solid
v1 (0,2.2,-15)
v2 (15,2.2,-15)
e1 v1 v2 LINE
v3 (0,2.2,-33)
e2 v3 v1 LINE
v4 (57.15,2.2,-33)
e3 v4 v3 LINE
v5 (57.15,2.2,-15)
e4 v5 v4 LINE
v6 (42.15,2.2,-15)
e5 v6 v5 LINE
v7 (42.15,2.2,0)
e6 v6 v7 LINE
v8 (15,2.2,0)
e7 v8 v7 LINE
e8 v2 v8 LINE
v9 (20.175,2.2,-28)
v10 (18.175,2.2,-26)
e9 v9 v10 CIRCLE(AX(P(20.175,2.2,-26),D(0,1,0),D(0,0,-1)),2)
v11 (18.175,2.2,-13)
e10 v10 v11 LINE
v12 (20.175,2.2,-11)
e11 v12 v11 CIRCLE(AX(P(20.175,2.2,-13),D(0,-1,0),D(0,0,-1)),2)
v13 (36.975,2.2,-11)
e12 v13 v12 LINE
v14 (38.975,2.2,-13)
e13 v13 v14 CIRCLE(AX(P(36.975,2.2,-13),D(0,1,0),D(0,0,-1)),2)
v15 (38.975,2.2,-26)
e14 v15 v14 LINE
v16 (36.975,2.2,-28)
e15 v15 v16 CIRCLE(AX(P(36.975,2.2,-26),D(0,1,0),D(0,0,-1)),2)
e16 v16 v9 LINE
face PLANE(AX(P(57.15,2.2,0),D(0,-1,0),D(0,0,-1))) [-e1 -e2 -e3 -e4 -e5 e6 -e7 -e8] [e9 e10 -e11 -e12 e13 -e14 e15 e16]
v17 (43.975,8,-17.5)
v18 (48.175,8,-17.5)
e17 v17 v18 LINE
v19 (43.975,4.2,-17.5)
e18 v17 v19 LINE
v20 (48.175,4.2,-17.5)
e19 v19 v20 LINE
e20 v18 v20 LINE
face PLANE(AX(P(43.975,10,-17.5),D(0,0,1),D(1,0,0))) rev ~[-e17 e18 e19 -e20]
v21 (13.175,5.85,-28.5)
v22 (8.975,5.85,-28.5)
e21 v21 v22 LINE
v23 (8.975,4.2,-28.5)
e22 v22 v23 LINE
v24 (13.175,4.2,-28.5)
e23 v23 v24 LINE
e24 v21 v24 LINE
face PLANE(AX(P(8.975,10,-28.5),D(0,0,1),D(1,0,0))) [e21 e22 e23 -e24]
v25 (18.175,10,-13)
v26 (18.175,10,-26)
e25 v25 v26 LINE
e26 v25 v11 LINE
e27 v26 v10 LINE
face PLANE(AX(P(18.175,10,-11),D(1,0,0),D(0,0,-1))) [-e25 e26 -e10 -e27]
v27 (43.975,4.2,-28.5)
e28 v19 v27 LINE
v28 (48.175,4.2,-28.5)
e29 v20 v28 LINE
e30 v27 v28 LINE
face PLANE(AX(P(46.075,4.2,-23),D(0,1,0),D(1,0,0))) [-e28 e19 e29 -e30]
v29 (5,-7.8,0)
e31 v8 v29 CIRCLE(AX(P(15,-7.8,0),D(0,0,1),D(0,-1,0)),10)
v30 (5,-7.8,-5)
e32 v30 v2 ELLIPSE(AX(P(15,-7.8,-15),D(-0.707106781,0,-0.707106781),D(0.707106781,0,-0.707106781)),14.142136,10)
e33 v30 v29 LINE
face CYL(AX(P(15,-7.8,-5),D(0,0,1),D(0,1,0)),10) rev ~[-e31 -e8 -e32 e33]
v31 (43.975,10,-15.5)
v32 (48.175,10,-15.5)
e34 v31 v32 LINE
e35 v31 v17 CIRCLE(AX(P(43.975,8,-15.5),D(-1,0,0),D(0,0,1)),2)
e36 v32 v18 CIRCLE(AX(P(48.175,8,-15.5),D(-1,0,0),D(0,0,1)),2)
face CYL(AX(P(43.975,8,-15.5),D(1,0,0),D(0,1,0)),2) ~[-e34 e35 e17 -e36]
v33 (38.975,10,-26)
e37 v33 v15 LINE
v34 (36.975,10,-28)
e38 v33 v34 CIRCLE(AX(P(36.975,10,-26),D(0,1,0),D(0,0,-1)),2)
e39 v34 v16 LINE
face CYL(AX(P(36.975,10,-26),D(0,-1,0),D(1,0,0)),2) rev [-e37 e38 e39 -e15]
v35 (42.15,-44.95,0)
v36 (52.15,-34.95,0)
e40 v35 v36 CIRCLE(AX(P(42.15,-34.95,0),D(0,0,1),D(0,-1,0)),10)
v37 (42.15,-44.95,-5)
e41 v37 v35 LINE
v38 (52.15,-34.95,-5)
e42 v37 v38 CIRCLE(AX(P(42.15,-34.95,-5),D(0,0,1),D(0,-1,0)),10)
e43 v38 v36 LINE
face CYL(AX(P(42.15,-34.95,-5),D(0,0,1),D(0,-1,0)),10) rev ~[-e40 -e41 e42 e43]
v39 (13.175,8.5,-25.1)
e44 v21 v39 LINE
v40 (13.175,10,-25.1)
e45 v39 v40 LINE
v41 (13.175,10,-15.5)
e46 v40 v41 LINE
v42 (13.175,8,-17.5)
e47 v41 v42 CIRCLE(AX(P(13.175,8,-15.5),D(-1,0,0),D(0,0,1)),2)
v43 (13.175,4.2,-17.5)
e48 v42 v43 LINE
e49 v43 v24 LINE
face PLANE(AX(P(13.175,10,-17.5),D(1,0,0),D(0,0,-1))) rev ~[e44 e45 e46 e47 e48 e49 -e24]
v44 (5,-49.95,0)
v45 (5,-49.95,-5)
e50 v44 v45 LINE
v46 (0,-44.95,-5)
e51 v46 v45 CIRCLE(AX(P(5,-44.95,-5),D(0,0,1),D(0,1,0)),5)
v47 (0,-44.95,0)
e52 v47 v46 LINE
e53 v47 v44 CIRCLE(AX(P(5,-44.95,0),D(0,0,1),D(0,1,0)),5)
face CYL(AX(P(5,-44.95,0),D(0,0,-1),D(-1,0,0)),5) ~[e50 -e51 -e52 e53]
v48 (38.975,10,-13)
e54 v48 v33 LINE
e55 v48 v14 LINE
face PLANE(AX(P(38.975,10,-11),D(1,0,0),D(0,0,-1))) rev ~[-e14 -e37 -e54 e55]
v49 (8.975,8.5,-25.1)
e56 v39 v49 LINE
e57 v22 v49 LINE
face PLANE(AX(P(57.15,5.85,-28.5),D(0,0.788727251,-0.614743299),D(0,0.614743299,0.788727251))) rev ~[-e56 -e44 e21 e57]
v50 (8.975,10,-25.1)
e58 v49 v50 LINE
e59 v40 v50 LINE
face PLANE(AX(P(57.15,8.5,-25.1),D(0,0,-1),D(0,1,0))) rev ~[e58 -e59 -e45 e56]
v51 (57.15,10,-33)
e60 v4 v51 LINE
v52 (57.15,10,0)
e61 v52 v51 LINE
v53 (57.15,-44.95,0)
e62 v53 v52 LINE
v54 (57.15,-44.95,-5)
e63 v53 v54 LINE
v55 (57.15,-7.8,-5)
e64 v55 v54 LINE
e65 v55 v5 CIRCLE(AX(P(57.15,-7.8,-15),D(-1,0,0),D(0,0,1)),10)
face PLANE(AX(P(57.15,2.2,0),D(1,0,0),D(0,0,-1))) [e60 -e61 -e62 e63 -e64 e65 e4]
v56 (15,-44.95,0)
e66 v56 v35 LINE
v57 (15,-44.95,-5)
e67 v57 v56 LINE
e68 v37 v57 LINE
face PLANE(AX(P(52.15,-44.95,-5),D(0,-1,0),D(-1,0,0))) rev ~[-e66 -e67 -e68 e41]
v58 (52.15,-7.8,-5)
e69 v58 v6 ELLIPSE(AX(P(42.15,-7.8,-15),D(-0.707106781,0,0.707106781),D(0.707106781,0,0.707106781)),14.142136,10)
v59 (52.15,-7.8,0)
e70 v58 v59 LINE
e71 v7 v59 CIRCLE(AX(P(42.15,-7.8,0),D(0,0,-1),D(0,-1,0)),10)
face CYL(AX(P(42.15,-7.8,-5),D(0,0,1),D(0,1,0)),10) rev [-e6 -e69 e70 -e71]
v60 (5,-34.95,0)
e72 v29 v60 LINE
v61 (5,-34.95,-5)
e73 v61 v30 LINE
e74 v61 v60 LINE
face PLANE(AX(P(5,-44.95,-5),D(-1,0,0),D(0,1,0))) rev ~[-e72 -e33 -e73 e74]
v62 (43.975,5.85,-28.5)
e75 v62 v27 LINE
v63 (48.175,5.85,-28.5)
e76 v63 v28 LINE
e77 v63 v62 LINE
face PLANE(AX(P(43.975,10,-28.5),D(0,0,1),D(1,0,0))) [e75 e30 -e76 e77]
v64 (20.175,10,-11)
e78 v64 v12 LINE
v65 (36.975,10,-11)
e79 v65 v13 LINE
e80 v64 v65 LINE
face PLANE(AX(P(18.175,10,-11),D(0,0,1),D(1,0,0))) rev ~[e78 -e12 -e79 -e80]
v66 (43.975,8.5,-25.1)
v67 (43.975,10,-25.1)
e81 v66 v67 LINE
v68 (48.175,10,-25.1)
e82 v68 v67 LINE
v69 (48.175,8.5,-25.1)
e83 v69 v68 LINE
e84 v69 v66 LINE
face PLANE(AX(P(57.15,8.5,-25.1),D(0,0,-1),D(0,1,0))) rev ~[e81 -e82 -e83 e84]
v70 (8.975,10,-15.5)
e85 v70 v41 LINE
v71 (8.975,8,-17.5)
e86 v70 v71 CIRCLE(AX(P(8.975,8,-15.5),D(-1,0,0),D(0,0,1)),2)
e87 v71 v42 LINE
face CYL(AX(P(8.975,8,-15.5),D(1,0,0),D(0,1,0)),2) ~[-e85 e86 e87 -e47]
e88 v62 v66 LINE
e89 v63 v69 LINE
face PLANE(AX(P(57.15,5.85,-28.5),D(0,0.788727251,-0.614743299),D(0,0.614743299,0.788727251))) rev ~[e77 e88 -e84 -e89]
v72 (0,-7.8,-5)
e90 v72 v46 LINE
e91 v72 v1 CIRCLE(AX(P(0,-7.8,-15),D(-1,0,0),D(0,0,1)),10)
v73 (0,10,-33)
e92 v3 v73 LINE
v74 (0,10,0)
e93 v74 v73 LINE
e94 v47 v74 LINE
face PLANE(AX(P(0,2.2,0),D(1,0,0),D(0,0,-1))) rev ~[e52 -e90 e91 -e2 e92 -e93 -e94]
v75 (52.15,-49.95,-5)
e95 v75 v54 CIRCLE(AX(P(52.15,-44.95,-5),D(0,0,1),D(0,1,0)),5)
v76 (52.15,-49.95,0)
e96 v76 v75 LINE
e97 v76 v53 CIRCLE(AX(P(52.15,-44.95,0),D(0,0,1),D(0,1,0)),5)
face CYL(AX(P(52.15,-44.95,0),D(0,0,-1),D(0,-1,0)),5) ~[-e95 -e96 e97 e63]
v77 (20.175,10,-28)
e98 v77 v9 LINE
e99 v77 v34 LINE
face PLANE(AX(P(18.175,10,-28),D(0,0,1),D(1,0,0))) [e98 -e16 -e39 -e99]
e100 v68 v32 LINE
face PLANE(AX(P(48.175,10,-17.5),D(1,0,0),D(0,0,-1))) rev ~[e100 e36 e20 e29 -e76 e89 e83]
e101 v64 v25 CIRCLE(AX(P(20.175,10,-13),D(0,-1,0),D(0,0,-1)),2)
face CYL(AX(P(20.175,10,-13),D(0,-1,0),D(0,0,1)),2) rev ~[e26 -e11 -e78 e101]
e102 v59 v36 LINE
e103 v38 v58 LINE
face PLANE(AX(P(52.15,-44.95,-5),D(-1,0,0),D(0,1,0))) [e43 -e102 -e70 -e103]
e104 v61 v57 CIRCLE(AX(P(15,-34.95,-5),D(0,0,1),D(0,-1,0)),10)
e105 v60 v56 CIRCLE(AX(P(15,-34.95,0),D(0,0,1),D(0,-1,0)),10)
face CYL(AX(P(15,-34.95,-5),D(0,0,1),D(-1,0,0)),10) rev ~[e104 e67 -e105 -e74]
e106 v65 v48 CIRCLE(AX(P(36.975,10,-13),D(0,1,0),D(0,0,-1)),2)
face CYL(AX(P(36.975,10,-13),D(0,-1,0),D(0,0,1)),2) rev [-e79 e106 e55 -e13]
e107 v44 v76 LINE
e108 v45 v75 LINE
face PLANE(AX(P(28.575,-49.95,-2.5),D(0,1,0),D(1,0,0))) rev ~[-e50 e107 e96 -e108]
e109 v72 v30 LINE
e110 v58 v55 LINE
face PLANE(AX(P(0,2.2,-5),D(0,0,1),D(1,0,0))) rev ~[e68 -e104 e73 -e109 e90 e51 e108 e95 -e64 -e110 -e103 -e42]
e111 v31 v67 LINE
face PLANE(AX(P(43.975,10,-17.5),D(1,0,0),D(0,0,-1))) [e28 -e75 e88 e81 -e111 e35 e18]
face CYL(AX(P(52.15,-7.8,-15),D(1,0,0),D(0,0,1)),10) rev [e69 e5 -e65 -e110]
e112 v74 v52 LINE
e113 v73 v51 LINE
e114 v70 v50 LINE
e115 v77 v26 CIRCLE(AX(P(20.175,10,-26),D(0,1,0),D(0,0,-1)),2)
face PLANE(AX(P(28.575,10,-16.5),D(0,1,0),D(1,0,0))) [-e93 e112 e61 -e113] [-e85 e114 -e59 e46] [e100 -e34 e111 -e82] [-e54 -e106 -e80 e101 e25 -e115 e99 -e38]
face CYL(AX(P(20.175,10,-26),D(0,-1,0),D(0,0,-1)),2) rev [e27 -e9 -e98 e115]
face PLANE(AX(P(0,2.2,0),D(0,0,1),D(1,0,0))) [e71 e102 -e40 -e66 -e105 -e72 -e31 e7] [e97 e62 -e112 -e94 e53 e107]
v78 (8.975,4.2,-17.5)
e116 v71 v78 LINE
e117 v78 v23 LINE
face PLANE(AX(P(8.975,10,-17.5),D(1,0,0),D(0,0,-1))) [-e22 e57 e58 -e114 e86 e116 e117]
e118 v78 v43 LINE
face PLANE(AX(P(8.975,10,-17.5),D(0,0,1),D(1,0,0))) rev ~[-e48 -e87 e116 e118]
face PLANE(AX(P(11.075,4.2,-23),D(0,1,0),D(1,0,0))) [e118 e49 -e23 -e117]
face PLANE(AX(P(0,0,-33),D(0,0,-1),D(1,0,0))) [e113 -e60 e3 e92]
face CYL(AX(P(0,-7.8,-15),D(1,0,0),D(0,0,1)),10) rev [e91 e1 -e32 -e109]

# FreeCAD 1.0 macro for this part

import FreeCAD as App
import Part
import Sketcher

V = App.Vector


def edges_at(feature, points):
    """Names of the edges that pass closest to the given points."""
    edges = feature.Shape.Edges
    near = lambda p: min(range(len(edges)), key=lambda i: edges[i].distToShape(Part.Vertex(*p))[0])
    return sorted({f"Edge{near(p) + 1}" for p in points})

doc = App.newDocument("Part")
params = doc.addObject("Spreadsheet::Sheet", "Params")
for row, (alias, value) in enumerate([
    ("sketch1_height", "33 mm"),
    ("sketch1_width", "57.15 mm"),
    ("pad1_length", "10 mm"),
    ("sketch2_height", "11 mm"),
    ("sketch2_width", "4.2 mm"),
    ("pocket1_length", "5.8 mm"),
    ("sketch3_width", "1.5 mm"),
    ("sketch3_height", "3.4 mm"),
    ("sketch3_width2", "4.15 mm"),
    ("pad2_length", "55.8 mm"),
    ("sketch4_height", "33 mm"),
    ("sketch4_width", "2.2 mm"),
    ("fillet_radius", "2 mm"),
    ("sketch5_height", "17 mm"),
    ("sketch5_width", "20.8 mm"),
    ("pocket3_length", "16 mm"),
    ("fillet2_radius", "2 mm"),
    ("sketch6_height", "5 mm"),
    ("sketch6_width", "57.15 mm"),
    ("pad3_length", "52.15 mm"),
    ("sketch7_width", "47.15 mm"),
    ("pocket4_length", "52.15 mm"),
    ("fillet3_radius", "10 mm"),
    ("fillet4_radius", "5 mm"),
], start=1):
    params.set(f"A{row}", alias)
    params.set(f"B{row}", "=" + value)
    params.setAlias(f"B{row}", alias)

body = doc.addObject("PartDesign::Body", "Body")

# Sketch on XZ plane
sketch1 = doc.addObject("Sketcher::SketchObject", "Sketch")
body.addObject(sketch1)
sketch1.AttachmentSupport = (doc.XZ_Plane, [""])
sketch1.MapMode = "FlatFace"
sketch1.addGeometry([
    Part.LineSegment(V(0, -33, 0), V(0, 0, 0)),
    Part.LineSegment(V(0, 0, 0), V(57, 0, 0)),
    Part.LineSegment(V(57, 0, 0), V(57, -33, 0)),
    Part.LineSegment(V(57, -33, 0), V(0, -33, 0)),
], False)
sketch1.addConstraint([
    Sketcher.Constraint("Coincident", 0, 2, 1, 1),
    Sketcher.Constraint("Coincident", 1, 2, 2, 1),
    Sketcher.Constraint("Coincident", 2, 2, 3, 1),
    Sketcher.Constraint("Coincident", 3, 2, 0, 1),
    Sketcher.Constraint("Vertical", 0),
    Sketcher.Constraint("Horizontal", 1),
    Sketcher.Constraint("Vertical", 2),
    Sketcher.Constraint("Horizontal", 3),
    Sketcher.Constraint("Coincident", 0, 2, -1, 1),
    Sketcher.Constraint("DistanceY", 0, 1, 0, 2, 33.0),
    Sketcher.Constraint("DistanceX", 1, 1, 1, 2, 57.15),
])
sketch1.setExpression("Constraints[9]", "Params.sketch1_height")
sketch1.setExpression("Constraints[10]", "Params.sketch1_width")
pad1 = doc.addObject("PartDesign::Pad", "Pad")
body.addObject(pad1)
pad1.Profile = sketch1
pad1.setExpression("Length", "Params.pad1_length")
pad1.Reversed = True

# Sketch on XZ plane
sketch2 = doc.addObject("Sketcher::SketchObject", "Sketch001")
body.addObject(sketch2)
sketch2.AttachmentSupport = (doc.XZ_Plane, [""])
sketch2.MapMode = "FlatFace"
sketch2.AttachmentOffset = App.Placement(V(0, 0, -10), App.Rotation())
sketch2.addGeometry([
    Part.LineSegment(V(9, -28.5, 0), V(9, -17.5, 0)),  # 0
    Part.LineSegment(V(9, -17.5, 0), V(13.2, -17.5, 0)),  # 1
    Part.LineSegment(V(13.2, -17.5, 0), V(13.2, -28.5, 0)),  # 2
    Part.LineSegment(V(13.2, -28.5, 0), V(9, -28.5, 0)),  # 3
    Part.LineSegment(V(44, -28.5, 0), V(44, -17.5, 0)),  # 4
    Part.LineSegment(V(44, -17.5, 0), V(48.2, -17.5, 0)),  # 5
    Part.LineSegment(V(48.2, -17.5, 0), V(48.2, -28.5, 0)),  # 6
    Part.LineSegment(V(48.2, -28.5, 0), V(44, -28.5, 0)),  # 7
], False)
sketch2.addConstraint([
    Sketcher.Constraint("Coincident", 0, 2, 1, 1),
    Sketcher.Constraint("Coincident", 1, 2, 2, 1),
    Sketcher.Constraint("Coincident", 2, 2, 3, 1),
    Sketcher.Constraint("Coincident", 3, 2, 0, 1),
    Sketcher.Constraint("Coincident", 4, 2, 5, 1),
    Sketcher.Constraint("Coincident", 5, 2, 6, 1),
    Sketcher.Constraint("Coincident", 6, 2, 7, 1),
    Sketcher.Constraint("Coincident", 7, 2, 4, 1),
    Sketcher.Constraint("Vertical", 0),
    Sketcher.Constraint("Horizontal", 1),
    Sketcher.Constraint("Vertical", 2),
    Sketcher.Constraint("Horizontal", 3),
    Sketcher.Constraint("Vertical", 4),
    Sketcher.Constraint("Horizontal", 5),
    Sketcher.Constraint("Vertical", 6),
    Sketcher.Constraint("Horizontal", 7),
    Sketcher.Constraint("Horizontal", 1, 2, 4, 2),
    Sketcher.Constraint("Horizontal", 3, 2, 6, 2),
    Sketcher.Constraint("Equal", 3, 5),
    Sketcher.Constraint("DistanceY", 0, 1, 0, 2, 11.0),
    Sketcher.Constraint("DistanceX", 1, 1, 1, 2, 4.2),
    Sketcher.Constraint("DistanceX", 0, 2, 4, 2, 35.0),
    Sketcher.Constraint("DistanceY", 0, 2, -1, 1, 17.5),
    Sketcher.Constraint("DistanceX", -1, 1, 0, 2, 8.975),
])
sketch2.setExpression("Constraints[19]", "Params.sketch2_height")
sketch2.setExpression("Constraints[20]", "Params.sketch2_width")
pocket1 = doc.addObject("PartDesign::Pocket", "Pocket")
body.addObject(pocket1)
pocket1.Profile = sketch2
pocket1.setExpression("Length", "Params.pocket1_length")
pocket1.Reversed = True

# Sketch on YZ plane
sketch3 = doc.addObject("Sketcher::SketchObject", "Sketch002")
body.addObject(sketch3)
sketch3.AttachmentSupport = (doc.YZ_Plane, [""])
sketch3.MapMode = "FlatFace"
sketch3.AttachmentOffset = App.Placement(V(0, 0, 57.15), App.Rotation())
sketch3.addGeometry([
    Part.LineSegment(V(5.8, -28.5, 0), V(8.5, -25.1, 0)),
    Part.LineSegment(V(8.5, -25.1, 0), V(10, -25.1, 0)),
    Part.LineSegment(V(10, -25.1, 0), V(10, -28.5, 0)),
    Part.LineSegment(V(10, -28.5, 0), V(5.8, -28.5, 0)),
], False)
sketch3.addConstraint([
    Sketcher.Constraint("Coincident", 0, 2, 1, 1),
    Sketcher.Constraint("Coincident", 1, 2, 2, 1),
    Sketcher.Constraint("Coincident", 2, 2, 3, 1),
    Sketcher.Constraint("Coincident", 3, 2, 0, 1),
    Sketcher.Constraint("Horizontal", 1),
    Sketcher.Constraint("Vertical", 2),
    Sketcher.Constraint("Horizontal", 3),
    Sketcher.Constraint("DistanceX", 1, 1, 1, 2, 1.5),
    Sketcher.Constraint("DistanceY", 2, 2, 2, 1, 3.4),
    Sketcher.Constraint("DistanceX", -1, 1, 1, 2, 10.0),
    Sketcher.Constraint("DistanceX", 3, 2, 3, 1, 4.15),
    Sketcher.Constraint("DistanceY", 0, 2, -1, 1, 25.1),
])
sketch3.setExpression("Constraints[7]", "Params.sketch3_width")
sketch3.setExpression("Constraints[8]", "Params.sketch3_height")
sketch3.setExpression("Constraints[10]", "Params.sketch3_width2")
pad2 = doc.addObject("PartDesign::Pad", "Pad001")
body.addObject(pad2)
pad2.Profile = sketch3
pad2.setExpression("Length", "Params.pad2_length")
pad2.Reversed = True

# Sketch on YZ plane
sketch4 = doc.addObject("Sketcher::SketchObject", "Sketch003")
body.addObject(sketch4)
sketch4.AttachmentSupport = (doc.YZ_Plane, [""])
sketch4.MapMode = "FlatFace"
sketch4.AttachmentOffset = App.Placement(V(0, 0, 57.15), App.Rotation())
sketch4.addGeometry([
    Part.LineSegment(V(2.2, 0, 0), V(0, 0, 0)),
    Part.LineSegment(V(0, 0, 0), V(0, -33, 0)),
    Part.LineSegment(V(0, -33, 0), V(2.2, -33, 0)),
    Part.LineSegment(V(2.2, -33, 0), V(2.2, 0, 0)),
], False)
sketch4.addConstraint([
    Sketcher.Constraint("Coincident", 0, 2, 1, 1),
    Sketcher.Constraint("Coincident", 1, 2, 2, 1),
    Sketcher.Constraint("Coincident", 2, 2, 3, 1),
    Sketcher.Constraint("Coincident", 3, 2, 0, 1),
    Sketcher.Constraint("Horizontal", 0),
    Sketcher.Constraint("Vertical", 1),
    Sketcher.Constraint("Horizontal", 2),
    Sketcher.Constraint("Vertical", 3),
    Sketcher.Constraint("Coincident", 0, 2, -1, 1),
    Sketcher.Constraint("DistanceY", 1, 2, 1, 1, 33.0),
    Sketcher.Constraint("DistanceX", 0, 2, 0, 1, 2.2),
])
sketch4.setExpression("Constraints[9]", "Params.sketch4_height")
sketch4.setExpression("Constraints[10]", "Params.sketch4_width")
pocket2 = doc.addObject("PartDesign::Pocket", "Pocket001")
body.addObject(pocket2)
pocket2.Profile = sketch4
pocket2.Type = "ThroughAll"
pocket2.Midplane = True
doc.recompute()

fillet = doc.addObject("PartDesign::Fillet", "Fillet")
body.addObject(fillet)
fillet.Base = (pocket2, edges_at(pocket2, [(11.075, 10, -17.5), (46.075, 10, -17.5)]))
fillet.setExpression("Radius", "Params.fillet_radius")

# Sketch on XZ plane
sketch5 = doc.addObject("Sketcher::SketchObject", "Sketch004")
body.addObject(sketch5)
sketch5.AttachmentSupport = (doc.XZ_Plane, [""])
sketch5.MapMode = "FlatFace"
sketch5.AttachmentOffset = App.Placement(V(0, 0, -10), App.Rotation())
sketch5.addGeometry([
    Part.LineSegment(V(18, -28, 0), V(18, -11, 0)),
    Part.LineSegment(V(18, -11, 0), V(39, -11, 0)),
    Part.LineSegment(V(39, -11, 0), V(39, -28, 0)),
    Part.LineSegment(V(39, -28, 0), V(18, -28, 0)),
], False)
sketch5.addConstraint([
    Sketcher.Constraint("Coincident", 0, 2, 1, 1),
    Sketcher.Constraint("Coincident", 1, 2, 2, 1),
    Sketcher.Constraint("Coincident", 2, 2, 3, 1),
    Sketcher.Constraint("Coincident", 3, 2, 0, 1),
    Sketcher.Constraint("Vertical", 0),
    Sketcher.Constraint("Horizontal", 1),
    Sketcher.Constraint("Vertical", 2),
    Sketcher.Constraint("Horizontal", 3),
    Sketcher.Constraint("DistanceY", 0, 1, 0, 2, 17.0),
    Sketcher.Constraint("DistanceX", 1, 1, 1, 2, 20.8),
    Sketcher.Constraint("DistanceY", 0, 2, -1, 1, 11.0),
    Sketcher.Constraint("DistanceX", -1, 1, 0, 2, 18.175),
])
sketch5.setExpression("Constraints[8]", "Params.sketch5_height")
sketch5.setExpression("Constraints[9]", "Params.sketch5_width")
pocket3 = doc.addObject("PartDesign::Pocket", "Pocket002")
body.addObject(pocket3)
pocket3.Profile = sketch5
pocket3.setExpression("Length", "Params.pocket3_length")
pocket3.Reversed = True
doc.recompute()

fillet2 = doc.addObject("PartDesign::Fillet", "Fillet001")
body.addObject(fillet2)
fillet2.Base = (pocket3, edges_at(pocket3, [
    (18.175, 6.1, -11),
    (18.175, 6.1, -28),
    (38.975, 6.1, -28),
    (38.975, 6.1, -11),
]))
fillet2.setExpression("Radius", "Params.fillet2_radius")

# Sketch on XZ plane
sketch6 = doc.addObject("Sketcher::SketchObject", "Sketch005")
body.addObject(sketch6)
sketch6.AttachmentSupport = (doc.XZ_Plane, [""])
sketch6.MapMode = "FlatFace"
sketch6.AttachmentOffset = App.Placement(V(0, 0, -2.2), App.Rotation())
sketch6.addGeometry([
    Part.LineSegment(V(0, -5, 0), V(0, 0, 0)),
    Part.LineSegment(V(0, 0, 0), V(57, 0, 0)),
    Part.LineSegment(V(57, 0, 0), V(57, -5, 0)),
    Part.LineSegment(V(57, -5, 0), V(0, -5, 0)),
], False)
sketch6.addConstraint([
    Sketcher.Constraint("Coincident", 0, 2, 1, 1),
    Sketcher.Constraint("Coincident", 1, 2, 2, 1),
    Sketcher.Constraint("Coincident", 2, 2, 3, 1),
    Sketcher.Constraint("Coincident", 3, 2, 0, 1),
    Sketcher.Constraint("Vertical", 0),
    Sketcher.Constraint("Horizontal", 1),
    Sketcher.Constraint("Vertical", 2),
    Sketcher.Constraint("Horizontal", 3),
    Sketcher.Constraint("Coincident", 0, 2, -1, 1),
    Sketcher.Constraint("DistanceY", 0, 1, 0, 2, 5.0),
    Sketcher.Constraint("DistanceX", 1, 1, 1, 2, 57.15),
])
sketch6.setExpression("Constraints[9]", "Params.sketch6_height")
sketch6.setExpression("Constraints[10]", "Params.sketch6_width")
pad3 = doc.addObject("PartDesign::Pad", "Pad002")
body.addObject(pad3)
pad3.Profile = sketch6
pad3.setExpression("Length", "Params.pad3_length")

# Sketch on XY plane
sketch7 = doc.addObject("Sketcher::SketchObject", "Sketch006")
body.addObject(sketch7)
sketch7.AttachmentSupport = (doc.XY_Plane, [""])
sketch7.MapMode = "FlatFace"
sketch7.AttachmentOffset = App.Placement(V(0, 0, -5), App.Rotation())
sketch7.addGeometry([
    Part.LineSegment(V(52, 2, 0), V(52, -45, 0)),
    Part.LineSegment(V(52, -45, 0), V(5, -45, 0)),
    Part.LineSegment(V(5, -45, 0), V(5, 2, 0)),
    Part.LineSegment(V(5, 2, 0), V(52, 2, 0)),
], False)
sketch7.addConstraint([
    Sketcher.Constraint("Coincident", 0, 2, 1, 1),
    Sketcher.Constraint("Coincident", 1, 2, 2, 1),
    Sketcher.Constraint("Coincident", 2, 2, 3, 1),
    Sketcher.Constraint("Coincident", 3, 2, 0, 1),
    Sketcher.Constraint("Vertical", 0),
    Sketcher.Constraint("Horizontal", 1),
    Sketcher.Constraint("Vertical", 2),
    Sketcher.Constraint("Horizontal", 3),
    Sketcher.Constraint("Equal", 3, 0),
    Sketcher.Constraint("DistanceX", -1, 1, 1, 2, 5.0),
    Sketcher.Constraint("DistanceX", 1, 2, 1, 1, 47.15),
    Sketcher.Constraint("DistanceY", -1, 1, 2, 2, 2.2),
])
sketch7.setExpression("Constraints[10]", "Params.sketch7_width")
pocket4 = doc.addObject("PartDesign::Pocket", "Pocket003")
body.addObject(pocket4)
pocket4.Profile = sketch7
pocket4.setExpression("Length", "Params.pocket4_length")
pocket4.Reversed = True
doc.recompute()

fillet3 = doc.addObject("PartDesign::Fillet", "Fillet002")
body.addObject(fillet3)
fillet3.Base = (pocket4, edges_at(pocket4, [
    (54.65, 2.2, -5),
    (2.5, 2.2, -5),
    (52.15, -44.95, -2.5),
    (52.15, 2.2, -2.5),
    (5, 2.2, -2.5),
    (5, -44.95, -2.5),
]))
fillet3.setExpression("Radius", "Params.fillet3_radius")
doc.recompute()

fillet4 = doc.addObject("PartDesign::Fillet", "Fillet003")
body.addObject(fillet4)
fillet4.Base = (fillet3, edges_at(fillet3, [(57.15, -49.95, -2.5), (0, -49.95, -2.5)]))
fillet4.setExpression("Radius", "Params.fillet4_radius")

doc.recompute()
